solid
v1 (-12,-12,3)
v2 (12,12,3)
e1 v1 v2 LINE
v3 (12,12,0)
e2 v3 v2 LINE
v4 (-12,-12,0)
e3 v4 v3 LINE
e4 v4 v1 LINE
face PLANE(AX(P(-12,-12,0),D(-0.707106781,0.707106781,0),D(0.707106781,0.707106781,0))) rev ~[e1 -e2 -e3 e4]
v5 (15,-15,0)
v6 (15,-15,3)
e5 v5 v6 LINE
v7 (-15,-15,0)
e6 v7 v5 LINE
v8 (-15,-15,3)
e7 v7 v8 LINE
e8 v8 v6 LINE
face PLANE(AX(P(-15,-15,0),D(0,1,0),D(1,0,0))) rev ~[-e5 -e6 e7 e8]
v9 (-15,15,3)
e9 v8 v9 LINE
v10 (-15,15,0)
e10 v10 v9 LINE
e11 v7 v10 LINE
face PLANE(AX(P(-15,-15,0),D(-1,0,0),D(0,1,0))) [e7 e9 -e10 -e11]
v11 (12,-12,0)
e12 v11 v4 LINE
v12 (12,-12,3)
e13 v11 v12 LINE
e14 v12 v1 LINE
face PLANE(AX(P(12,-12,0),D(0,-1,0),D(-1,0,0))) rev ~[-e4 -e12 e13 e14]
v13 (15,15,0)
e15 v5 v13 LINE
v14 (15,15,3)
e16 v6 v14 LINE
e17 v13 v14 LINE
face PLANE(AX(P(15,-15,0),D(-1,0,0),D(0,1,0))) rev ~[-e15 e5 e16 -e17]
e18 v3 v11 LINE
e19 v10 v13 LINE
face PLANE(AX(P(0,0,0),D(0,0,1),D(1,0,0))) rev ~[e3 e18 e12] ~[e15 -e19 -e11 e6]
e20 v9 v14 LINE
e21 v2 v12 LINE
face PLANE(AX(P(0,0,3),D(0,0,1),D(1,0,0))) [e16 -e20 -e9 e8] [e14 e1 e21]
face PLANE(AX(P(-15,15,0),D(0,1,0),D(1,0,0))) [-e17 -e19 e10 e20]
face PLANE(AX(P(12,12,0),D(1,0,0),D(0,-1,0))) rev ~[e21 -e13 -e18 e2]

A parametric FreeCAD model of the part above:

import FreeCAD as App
import Part
import Sketcher

doc = App.newDocument("Part")
body = doc.addObject("PartDesign::Body", "Body")

sketch1 = body.newObject("Sketcher::SketchObject", "Sketch")
sketch1.AttachmentSupport = (doc.getObject("XY_Plane"), [""])
sketch1.MapMode = "FlatFace"
sketch1.addGeometry([
    Part.LineSegment(App.Vector(-15, 15, 0), App.Vector(-15, -15, 0)),
    Part.LineSegment(App.Vector(-15, -15, 0), App.Vector(15, -15, 0)),
    Part.LineSegment(App.Vector(15, -15, 0), App.Vector(15, 15, 0)),
    Part.LineSegment(App.Vector(15, 15, 0), App.Vector(-15, 15, 0)),
    Part.LineSegment(App.Vector(12, -12, 0), App.Vector(-12, -12, 0)),
    Part.LineSegment(App.Vector(-12, -12, 0), App.Vector(12, 12, 0)),
    Part.LineSegment(App.Vector(12, 12, 0), App.Vector(12, -12, 0)),
], False)
sketch1.addConstraint([
    Sketcher.Constraint("Coincident", 0, 2, 1, 1),
    Sketcher.Constraint("Coincident", 1, 2, 2, 1),
    Sketcher.Constraint("Coincident", 2, 2, 3, 1),
    Sketcher.Constraint("Coincident", 3, 2, 0, 1),
    Sketcher.Constraint("Coincident", 4, 2, 5, 1),
    Sketcher.Constraint("Coincident", 5, 2, 6, 1),
    Sketcher.Constraint("Coincident", 6, 2, 4, 1),
    Sketcher.Constraint("Vertical", 0),
    Sketcher.Constraint("Horizontal", 1),
    Sketcher.Constraint("Vertical", 2),
    Sketcher.Constraint("Horizontal", 3),
    Sketcher.Constraint("Horizontal", 4),
    Sketcher.Constraint("Vertical", 6),
    Sketcher.Constraint("Symmetric", 0, 2, 2, 2, -1, 1),
    Sketcher.Constraint("Symmetric", 4, 2, 5, 2, -1, 1),
    Sketcher.Constraint("Equal", 3, 0),
    Sketcher.Constraint("Equal", 4, 6),
    Sketcher.Constraint("DistanceX", 1, 1, 1, 2, 30.0),
    Sketcher.Constraint("DistanceX", 4, 2, 4, 1, 24.0),
])
pad1 = body.newObject("PartDesign::Pad", "Pad")
pad1.Profile = sketch1
pad1.Length = 3

doc.recompute()
